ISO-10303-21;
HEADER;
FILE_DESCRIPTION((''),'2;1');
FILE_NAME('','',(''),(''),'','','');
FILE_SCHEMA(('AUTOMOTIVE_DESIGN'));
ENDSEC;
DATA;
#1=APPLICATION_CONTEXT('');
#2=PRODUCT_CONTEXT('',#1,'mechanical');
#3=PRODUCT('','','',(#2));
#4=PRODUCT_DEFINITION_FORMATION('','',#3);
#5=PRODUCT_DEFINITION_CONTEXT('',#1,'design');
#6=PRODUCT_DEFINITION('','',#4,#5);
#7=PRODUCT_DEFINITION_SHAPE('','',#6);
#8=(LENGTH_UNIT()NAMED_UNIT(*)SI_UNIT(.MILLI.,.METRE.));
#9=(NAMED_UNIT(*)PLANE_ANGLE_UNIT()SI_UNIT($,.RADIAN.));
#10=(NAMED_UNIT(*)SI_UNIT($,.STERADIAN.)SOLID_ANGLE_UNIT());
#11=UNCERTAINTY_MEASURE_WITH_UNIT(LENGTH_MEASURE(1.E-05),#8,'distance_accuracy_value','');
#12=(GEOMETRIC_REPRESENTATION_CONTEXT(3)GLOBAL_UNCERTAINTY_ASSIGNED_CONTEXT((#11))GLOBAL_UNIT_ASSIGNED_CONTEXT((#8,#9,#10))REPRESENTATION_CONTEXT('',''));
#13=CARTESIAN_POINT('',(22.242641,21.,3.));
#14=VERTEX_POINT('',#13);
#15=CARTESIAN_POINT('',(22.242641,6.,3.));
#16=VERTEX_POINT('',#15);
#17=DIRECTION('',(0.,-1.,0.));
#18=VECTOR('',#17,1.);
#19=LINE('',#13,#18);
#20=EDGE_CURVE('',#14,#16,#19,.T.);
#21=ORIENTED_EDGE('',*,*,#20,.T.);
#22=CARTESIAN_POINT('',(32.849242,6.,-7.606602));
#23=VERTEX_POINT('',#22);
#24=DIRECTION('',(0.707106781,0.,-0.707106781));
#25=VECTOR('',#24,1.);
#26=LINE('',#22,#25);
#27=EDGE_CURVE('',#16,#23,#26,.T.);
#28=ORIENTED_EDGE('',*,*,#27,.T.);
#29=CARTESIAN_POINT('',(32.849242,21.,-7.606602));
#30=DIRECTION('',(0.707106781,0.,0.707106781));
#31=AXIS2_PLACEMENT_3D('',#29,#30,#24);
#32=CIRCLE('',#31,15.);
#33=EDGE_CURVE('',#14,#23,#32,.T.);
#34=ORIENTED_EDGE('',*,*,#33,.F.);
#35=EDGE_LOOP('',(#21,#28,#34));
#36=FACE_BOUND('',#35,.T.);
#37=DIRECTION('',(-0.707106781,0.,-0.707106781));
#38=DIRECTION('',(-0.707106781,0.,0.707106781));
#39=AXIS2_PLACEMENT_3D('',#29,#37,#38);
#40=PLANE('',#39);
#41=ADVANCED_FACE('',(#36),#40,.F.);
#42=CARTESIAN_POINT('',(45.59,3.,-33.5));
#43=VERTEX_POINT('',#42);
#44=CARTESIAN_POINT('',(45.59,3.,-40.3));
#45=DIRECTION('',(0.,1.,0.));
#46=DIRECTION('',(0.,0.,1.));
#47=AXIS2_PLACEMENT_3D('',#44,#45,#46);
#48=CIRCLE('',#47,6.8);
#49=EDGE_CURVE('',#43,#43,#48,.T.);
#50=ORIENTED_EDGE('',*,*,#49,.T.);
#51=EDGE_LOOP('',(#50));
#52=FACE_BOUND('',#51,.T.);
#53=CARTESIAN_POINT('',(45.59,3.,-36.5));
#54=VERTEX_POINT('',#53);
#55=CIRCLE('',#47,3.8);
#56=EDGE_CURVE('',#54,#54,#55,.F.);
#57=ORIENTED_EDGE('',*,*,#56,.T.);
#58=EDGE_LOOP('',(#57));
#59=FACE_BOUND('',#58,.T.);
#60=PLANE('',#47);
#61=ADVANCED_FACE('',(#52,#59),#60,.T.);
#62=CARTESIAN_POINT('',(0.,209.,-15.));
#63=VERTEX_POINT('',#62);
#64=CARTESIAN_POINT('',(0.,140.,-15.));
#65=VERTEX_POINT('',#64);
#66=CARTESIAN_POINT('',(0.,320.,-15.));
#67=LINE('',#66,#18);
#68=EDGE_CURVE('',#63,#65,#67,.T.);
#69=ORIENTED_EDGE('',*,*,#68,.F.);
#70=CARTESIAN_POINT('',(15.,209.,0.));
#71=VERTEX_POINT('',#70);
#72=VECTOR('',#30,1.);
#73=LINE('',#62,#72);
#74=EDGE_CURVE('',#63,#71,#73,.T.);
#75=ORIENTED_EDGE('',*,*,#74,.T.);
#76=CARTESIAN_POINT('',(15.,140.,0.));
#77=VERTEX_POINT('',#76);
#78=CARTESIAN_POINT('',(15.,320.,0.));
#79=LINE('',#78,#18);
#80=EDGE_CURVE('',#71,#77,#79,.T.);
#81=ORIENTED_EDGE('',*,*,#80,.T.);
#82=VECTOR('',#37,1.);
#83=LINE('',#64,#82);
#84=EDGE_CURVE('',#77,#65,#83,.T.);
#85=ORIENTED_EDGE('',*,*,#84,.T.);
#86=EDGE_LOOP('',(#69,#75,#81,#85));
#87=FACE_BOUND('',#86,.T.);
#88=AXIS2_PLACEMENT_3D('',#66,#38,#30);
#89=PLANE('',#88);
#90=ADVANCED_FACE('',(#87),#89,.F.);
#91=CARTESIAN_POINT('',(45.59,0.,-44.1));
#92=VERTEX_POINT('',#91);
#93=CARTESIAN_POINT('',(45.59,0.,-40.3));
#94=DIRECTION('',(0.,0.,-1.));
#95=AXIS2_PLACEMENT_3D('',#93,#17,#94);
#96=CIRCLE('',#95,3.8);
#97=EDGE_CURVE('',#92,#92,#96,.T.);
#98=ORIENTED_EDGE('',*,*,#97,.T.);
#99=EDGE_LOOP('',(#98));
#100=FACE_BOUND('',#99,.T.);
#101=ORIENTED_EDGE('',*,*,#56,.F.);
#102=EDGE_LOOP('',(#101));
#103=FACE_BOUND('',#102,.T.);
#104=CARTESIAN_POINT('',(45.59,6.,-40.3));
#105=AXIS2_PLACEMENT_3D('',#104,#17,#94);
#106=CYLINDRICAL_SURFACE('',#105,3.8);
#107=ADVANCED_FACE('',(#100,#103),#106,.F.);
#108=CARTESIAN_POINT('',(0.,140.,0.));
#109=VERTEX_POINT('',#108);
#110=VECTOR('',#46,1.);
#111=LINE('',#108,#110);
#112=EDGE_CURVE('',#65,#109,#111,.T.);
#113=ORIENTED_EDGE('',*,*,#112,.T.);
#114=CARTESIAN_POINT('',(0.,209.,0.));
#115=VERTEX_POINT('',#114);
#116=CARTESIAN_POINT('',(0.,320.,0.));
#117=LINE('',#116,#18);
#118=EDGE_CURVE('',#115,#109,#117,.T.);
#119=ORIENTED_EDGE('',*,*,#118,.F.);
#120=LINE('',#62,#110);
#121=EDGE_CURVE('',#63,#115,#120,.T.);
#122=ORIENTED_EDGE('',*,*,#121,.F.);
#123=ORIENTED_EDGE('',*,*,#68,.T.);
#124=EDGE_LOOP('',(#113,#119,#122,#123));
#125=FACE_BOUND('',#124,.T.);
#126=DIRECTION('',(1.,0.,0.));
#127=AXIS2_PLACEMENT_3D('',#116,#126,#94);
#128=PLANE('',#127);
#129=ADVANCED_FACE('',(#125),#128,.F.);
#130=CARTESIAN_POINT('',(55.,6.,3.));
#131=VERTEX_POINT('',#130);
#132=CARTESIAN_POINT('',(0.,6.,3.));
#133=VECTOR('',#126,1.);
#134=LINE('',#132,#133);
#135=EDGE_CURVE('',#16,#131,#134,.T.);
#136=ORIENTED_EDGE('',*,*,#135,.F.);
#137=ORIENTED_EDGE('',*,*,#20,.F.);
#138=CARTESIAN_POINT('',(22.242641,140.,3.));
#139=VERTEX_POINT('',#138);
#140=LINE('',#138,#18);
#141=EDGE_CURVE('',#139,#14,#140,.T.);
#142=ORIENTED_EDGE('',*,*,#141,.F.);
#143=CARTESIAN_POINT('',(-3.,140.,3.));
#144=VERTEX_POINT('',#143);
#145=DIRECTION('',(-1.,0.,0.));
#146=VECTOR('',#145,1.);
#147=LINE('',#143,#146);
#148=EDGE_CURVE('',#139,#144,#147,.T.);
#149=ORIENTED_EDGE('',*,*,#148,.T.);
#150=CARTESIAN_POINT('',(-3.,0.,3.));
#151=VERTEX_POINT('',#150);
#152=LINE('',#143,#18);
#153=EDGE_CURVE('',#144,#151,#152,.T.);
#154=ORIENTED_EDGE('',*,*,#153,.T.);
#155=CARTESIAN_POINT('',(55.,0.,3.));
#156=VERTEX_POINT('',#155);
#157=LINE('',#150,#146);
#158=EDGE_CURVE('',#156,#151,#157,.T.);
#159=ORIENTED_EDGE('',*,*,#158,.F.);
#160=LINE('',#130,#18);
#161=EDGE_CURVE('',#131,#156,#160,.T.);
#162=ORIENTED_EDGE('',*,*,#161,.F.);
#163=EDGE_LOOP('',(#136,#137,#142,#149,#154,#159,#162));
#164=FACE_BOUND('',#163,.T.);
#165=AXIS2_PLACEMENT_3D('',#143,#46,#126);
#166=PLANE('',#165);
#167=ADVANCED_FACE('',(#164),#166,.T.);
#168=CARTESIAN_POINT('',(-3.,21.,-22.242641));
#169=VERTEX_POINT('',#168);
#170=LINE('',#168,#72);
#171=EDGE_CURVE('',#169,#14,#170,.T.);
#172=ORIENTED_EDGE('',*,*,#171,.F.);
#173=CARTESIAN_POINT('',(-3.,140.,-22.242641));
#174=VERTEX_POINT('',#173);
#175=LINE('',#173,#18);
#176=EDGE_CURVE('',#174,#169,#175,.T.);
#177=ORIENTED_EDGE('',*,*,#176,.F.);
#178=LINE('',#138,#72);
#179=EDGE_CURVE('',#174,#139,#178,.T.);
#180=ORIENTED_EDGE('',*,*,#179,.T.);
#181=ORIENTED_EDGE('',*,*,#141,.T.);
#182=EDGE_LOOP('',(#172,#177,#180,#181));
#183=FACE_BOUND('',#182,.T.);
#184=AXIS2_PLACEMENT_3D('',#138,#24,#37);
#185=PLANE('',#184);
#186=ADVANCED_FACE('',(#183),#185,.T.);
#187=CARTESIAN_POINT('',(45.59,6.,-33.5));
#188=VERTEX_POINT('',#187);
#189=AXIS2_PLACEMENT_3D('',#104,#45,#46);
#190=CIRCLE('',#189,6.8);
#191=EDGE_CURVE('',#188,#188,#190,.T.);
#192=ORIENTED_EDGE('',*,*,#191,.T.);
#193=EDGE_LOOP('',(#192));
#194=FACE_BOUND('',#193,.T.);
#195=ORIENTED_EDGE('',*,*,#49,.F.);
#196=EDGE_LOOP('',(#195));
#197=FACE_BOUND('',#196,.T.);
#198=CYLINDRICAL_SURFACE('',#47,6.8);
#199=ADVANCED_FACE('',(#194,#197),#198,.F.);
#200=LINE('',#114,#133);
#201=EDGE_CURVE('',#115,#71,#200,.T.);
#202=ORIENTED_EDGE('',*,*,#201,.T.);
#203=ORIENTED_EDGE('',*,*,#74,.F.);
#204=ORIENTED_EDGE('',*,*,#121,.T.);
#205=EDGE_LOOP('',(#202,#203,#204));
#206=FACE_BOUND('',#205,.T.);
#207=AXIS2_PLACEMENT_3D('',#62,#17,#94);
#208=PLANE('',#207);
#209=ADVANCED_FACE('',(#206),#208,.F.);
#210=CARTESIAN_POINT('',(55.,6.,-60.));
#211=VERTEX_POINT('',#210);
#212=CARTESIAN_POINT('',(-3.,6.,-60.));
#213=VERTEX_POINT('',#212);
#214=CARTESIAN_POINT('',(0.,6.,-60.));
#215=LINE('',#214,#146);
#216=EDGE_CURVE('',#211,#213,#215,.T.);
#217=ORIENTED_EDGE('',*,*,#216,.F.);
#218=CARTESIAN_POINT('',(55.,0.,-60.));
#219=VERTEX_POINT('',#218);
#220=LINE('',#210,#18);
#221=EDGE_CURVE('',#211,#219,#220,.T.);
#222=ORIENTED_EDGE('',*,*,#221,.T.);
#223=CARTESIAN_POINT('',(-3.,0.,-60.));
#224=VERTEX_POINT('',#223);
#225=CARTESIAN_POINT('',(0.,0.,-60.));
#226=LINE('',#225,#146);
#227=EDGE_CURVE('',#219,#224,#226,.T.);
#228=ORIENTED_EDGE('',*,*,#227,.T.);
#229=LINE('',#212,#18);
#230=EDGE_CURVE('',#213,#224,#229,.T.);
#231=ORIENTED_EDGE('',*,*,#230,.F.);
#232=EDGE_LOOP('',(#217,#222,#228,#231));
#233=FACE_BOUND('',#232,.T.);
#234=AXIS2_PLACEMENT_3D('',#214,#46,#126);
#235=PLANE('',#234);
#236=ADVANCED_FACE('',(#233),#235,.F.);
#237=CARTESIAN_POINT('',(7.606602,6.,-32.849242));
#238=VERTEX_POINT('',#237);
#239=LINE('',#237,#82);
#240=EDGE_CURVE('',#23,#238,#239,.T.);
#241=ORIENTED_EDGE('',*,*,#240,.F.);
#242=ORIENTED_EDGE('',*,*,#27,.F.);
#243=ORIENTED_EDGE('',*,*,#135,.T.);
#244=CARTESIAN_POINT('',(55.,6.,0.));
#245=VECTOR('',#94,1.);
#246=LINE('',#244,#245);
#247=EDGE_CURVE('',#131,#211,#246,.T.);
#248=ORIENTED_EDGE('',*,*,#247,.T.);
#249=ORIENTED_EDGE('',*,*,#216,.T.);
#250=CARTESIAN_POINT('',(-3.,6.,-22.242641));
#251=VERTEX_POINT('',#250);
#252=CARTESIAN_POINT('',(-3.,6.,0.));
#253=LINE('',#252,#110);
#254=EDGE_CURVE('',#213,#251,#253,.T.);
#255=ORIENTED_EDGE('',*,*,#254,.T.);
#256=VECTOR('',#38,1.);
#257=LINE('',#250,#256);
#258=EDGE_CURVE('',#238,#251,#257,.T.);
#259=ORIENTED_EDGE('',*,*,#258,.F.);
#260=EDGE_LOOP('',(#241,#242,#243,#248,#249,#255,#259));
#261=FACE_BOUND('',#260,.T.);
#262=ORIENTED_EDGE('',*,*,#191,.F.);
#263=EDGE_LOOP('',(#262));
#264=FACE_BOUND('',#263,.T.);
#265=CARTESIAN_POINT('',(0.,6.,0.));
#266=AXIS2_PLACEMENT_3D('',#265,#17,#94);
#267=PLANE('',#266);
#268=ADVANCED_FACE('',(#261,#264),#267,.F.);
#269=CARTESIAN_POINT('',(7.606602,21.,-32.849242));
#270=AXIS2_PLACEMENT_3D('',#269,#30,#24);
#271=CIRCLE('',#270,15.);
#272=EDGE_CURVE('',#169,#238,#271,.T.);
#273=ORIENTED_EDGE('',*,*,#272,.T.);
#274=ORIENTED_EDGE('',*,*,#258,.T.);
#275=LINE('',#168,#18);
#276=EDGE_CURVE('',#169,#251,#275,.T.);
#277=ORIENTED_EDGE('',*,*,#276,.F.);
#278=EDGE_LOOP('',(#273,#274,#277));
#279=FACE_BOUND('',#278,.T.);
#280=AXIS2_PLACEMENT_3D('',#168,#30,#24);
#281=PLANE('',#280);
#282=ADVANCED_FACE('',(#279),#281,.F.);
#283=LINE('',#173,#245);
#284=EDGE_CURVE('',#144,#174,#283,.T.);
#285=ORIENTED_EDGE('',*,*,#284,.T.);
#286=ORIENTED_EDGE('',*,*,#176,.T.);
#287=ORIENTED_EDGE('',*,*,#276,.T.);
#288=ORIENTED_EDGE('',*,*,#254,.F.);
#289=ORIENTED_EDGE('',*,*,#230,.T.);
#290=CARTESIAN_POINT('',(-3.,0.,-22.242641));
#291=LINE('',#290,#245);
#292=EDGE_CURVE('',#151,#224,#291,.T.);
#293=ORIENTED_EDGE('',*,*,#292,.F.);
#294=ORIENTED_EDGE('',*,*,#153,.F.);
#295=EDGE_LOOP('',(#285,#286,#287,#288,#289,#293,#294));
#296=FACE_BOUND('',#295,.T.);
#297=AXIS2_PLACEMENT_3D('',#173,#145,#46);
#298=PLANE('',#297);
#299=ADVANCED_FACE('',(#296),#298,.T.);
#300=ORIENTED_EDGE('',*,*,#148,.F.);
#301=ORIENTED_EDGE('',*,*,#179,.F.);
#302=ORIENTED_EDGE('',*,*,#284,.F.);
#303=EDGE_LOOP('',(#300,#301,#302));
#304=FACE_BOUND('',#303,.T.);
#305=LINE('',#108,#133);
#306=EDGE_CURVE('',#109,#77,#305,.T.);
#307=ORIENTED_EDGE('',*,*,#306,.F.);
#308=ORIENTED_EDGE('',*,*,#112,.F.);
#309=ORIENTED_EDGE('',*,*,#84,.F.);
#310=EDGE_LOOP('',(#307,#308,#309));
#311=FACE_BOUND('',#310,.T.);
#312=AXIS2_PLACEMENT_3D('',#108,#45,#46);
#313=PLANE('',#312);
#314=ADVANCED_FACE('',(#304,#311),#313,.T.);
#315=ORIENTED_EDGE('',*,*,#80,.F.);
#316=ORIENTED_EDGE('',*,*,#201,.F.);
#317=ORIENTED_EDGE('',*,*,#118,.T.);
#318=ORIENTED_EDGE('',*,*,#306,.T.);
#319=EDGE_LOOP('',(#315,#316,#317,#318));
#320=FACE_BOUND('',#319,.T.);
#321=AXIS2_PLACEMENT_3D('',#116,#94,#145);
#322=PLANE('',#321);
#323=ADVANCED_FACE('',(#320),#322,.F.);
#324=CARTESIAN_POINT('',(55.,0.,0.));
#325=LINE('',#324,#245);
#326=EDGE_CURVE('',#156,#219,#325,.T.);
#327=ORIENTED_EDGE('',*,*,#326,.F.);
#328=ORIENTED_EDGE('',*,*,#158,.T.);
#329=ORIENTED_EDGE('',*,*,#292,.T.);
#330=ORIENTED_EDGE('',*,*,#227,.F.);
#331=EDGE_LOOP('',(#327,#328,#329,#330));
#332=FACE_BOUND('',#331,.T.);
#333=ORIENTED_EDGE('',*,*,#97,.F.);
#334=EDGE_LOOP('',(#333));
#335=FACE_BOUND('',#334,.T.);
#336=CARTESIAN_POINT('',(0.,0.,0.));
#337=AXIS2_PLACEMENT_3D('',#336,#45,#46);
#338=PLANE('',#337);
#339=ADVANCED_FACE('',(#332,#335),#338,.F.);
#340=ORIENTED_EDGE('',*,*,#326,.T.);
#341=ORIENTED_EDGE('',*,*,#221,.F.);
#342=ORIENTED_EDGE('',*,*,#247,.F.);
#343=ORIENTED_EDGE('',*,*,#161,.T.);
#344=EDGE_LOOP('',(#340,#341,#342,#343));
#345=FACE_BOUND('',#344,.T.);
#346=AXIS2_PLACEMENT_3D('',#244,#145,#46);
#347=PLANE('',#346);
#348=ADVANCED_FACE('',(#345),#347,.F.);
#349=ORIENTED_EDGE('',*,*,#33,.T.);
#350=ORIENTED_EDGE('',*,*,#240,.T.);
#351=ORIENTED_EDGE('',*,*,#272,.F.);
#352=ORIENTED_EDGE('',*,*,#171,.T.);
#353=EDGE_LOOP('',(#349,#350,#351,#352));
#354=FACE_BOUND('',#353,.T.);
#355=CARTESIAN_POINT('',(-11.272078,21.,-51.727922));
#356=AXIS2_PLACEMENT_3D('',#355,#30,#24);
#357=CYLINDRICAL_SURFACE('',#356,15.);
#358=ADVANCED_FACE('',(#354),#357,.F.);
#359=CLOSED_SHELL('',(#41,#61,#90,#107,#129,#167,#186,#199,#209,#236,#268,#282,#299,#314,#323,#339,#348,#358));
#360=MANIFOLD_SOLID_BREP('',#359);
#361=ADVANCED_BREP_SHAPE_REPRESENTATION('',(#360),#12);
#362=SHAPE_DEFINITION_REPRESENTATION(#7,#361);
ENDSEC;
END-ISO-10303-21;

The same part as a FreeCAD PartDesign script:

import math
import FreeCAD as App
import Part
import Sketcher

V = App.Vector
Q = App.Units.Quantity

doc = App.newDocument("Part")
body = doc.addObject("PartDesign::Body", "Body")

# Sketch on XZ plane
sketch1 = body.newObject("Sketcher::SketchObject", "Sketch")
sketch1.AttachmentSupport = (doc.getObject("XZ_Plane"), [""])
sketch1.MapMode = "FlatFace"
sketch1.addGeometry(Part.LineSegment(V(0, -15, 0), V(0, 0, 0)), False)
sketch1.addGeometry(Part.LineSegment(V(0, 0, 0), V(15, 0, 0)), False)
sketch1.addGeometry(Part.LineSegment(V(15, 0, 0), V(0, -15, 0)), False)
sketch1.addConstraint(Sketcher.Constraint("Coincident", 0, 2, 1, 1))
sketch1.addConstraint(Sketcher.Constraint("Coincident", 1, 2, 2, 1))
sketch1.addConstraint(Sketcher.Constraint("Coincident", 2, 2, 0, 1))
sketch1.addConstraint(Sketcher.Constraint("Vertical", 0))
sketch1.addConstraint(Sketcher.Constraint("Horizontal", 1))
sketch1.addConstraint(Sketcher.Constraint("Coincident", 0, 2, -1, 1))
sketch1.addConstraint(Sketcher.Constraint("Equal", 1, 0))
sketch1.addConstraint(Sketcher.Constraint("DistanceX", 1, 1, 1, 2, Q("15 mm")))
pad1 = body.newObject("PartDesign::Pad", "Pad")
pad1.Profile = sketch1
pad1.Length = 320
pad1.Reversed = True

# Sketch on XY plane
sketch2 = body.newObject("Sketcher::SketchObject", "Sketch001")
sketch2.AttachmentSupport = (doc.getObject("XY_Plane"), [""])
sketch2.MapMode = "FlatFace"
sketch2.addGeometry(Part.LineSegment(V(0, 320, 0), V(0, 209, 0)), False)
sketch2.addGeometry(Part.LineSegment(V(0, 209, 0), V(15, 209, 0)), False)
sketch2.addGeometry(Part.LineSegment(V(15, 209, 0), V(15, 320, 0)), False)
sketch2.addGeometry(Part.LineSegment(V(15, 320, 0), V(0, 320, 0)), False)
sketch2.addConstraint(Sketcher.Constraint("Coincident", 0, 2, 1, 1))
sketch2.addConstraint(Sketcher.Constraint("Coincident", 1, 2, 2, 1))
sketch2.addConstraint(Sketcher.Constraint("Coincident", 2, 2, 3, 1))
sketch2.addConstraint(Sketcher.Constraint("Coincident", 3, 2, 0, 1))
sketch2.addConstraint(Sketcher.Constraint("Vertical", 0))
sketch2.addConstraint(Sketcher.Constraint("Horizontal", 1))
sketch2.addConstraint(Sketcher.Constraint("Vertical", 2))
sketch2.addConstraint(Sketcher.Constraint("Horizontal", 3))
sketch2.addConstraint(Sketcher.Constraint("PointOnObject", 0, 2, -2))
sketch2.addConstraint(Sketcher.Constraint("DistanceX", 1, 1, 1, 2, Q("15 mm")))
sketch2.addConstraint(Sketcher.Constraint("DistanceY", 0, 2, 0, 1, Q("111 mm")))
sketch2.addConstraint(Sketcher.Constraint("DistanceY", -1, 1, 0, 2, Q("209 mm")))
pocket1 = body.newObject("PartDesign::Pocket", "Pocket")
pocket1.Profile = sketch2
pocket1.Type = "ThroughAll"

# Sketch on XZ plane
sketch3 = body.newObject("Sketcher::SketchObject", "Sketch002")
sketch3.AttachmentSupport = (doc.getObject("XZ_Plane"), [""])
sketch3.MapMode = "FlatFace"
sketch3.addGeometry(Part.LineSegment(V(-3, 3, 0), V(-3, -22, 0)), False)
sketch3.addGeometry(Part.LineSegment(V(-3, -22, 0), V(22, 3, 0)), False)
sketch3.addGeometry(Part.LineSegment(V(22, 3, 0), V(-3, 3, 0)), False)
sketch3.addConstraint(Sketcher.Constraint("Coincident", 0, 2, 1, 1))
sketch3.addConstraint(Sketcher.Constraint("Coincident", 1, 2, 2, 1))
sketch3.addConstraint(Sketcher.Constraint("Coincident", 2, 2, 0, 1))
sketch3.addConstraint(Sketcher.Constraint("Vertical", 0))
sketch3.addConstraint(Sketcher.Constraint("Horizontal", 2))
sketch3.addConstraint(Sketcher.Constraint("Equal", 2, 0))
sketch3.addConstraint(Sketcher.Constraint("DistanceX", 0, 2, -1, 1, Q("3 mm")))
sketch3.addConstraint(Sketcher.Constraint("DistanceY", -1, 1, 1, 2, Q("3 mm")))
sketch3.addConstraint(Sketcher.Constraint("DistanceX", 2, 2, 2, 1, Q("25.242641 mm")))
pad2 = body.newObject("PartDesign::Pad", "Pad001")
pad2.Profile = sketch3
pad2.Length = 140
pad2.Reversed = True

# Sketch on XZ plane
sketch4 = body.newObject("Sketcher::SketchObject", "Sketch003")
sketch4.AttachmentSupport = (doc.getObject("XZ_Plane"), [""])
sketch4.MapMode = "FlatFace"
sketch4.addGeometry(Part.LineSegment(V(-3, 3, 0), V(-3, -60, 0)), False)
sketch4.addGeometry(Part.LineSegment(V(-3, -60, 0), V(55, -60, 0)), False)
sketch4.addGeometry(Part.LineSegment(V(55, -60, 0), V(55, 3, 0)), False)
sketch4.addGeometry(Part.LineSegment(V(55, 3, 0), V(-3, 3, 0)), False)
sketch4.addGeometry(Part.Circle(V(45.6, -40.3, 0), V(0, 0, 1), 3.8), False)
sketch4.addConstraint(Sketcher.Constraint("Coincident", 0, 2, 1, 1))
sketch4.addConstraint(Sketcher.Constraint("Coincident", 1, 2, 2, 1))
sketch4.addConstraint(Sketcher.Constraint("Coincident", 2, 2, 3, 1))
sketch4.addConstraint(Sketcher.Constraint("Coincident", 3, 2, 0, 1))
sketch4.addConstraint(Sketcher.Constraint("Vertical", 0))
sketch4.addConstraint(Sketcher.Constraint("Horizontal", 1))
sketch4.addConstraint(Sketcher.Constraint("Vertical", 2))
sketch4.addConstraint(Sketcher.Constraint("Horizontal", 3))
sketch4.addConstraint(Sketcher.Constraint("Diameter", 4, Q("7.6 mm")))
sketch4.addConstraint(Sketcher.Constraint("DistanceX", 1, 1, 1, 2, Q("58 mm")))
sketch4.addConstraint(Sketcher.Constraint("DistanceY", 0, 2, 0, 1, Q("63 mm")))
sketch4.addConstraint(Sketcher.Constraint("DistanceX", 0, 2, -1, 1, Q("3 mm")))
sketch4.addConstraint(Sketcher.Constraint("DistanceY", 0, 2, -1, 1, Q("60 mm")))
sketch4.addConstraint(Sketcher.Constraint("DistanceY", 4, 3, -1, 1, Q("40.3 mm")))
sketch4.addConstraint(Sketcher.Constraint("DistanceX", -1, 1, 4, 3, Q("45.59 mm")))
pad3 = body.newObject("PartDesign::Pad", "Pad002")
pad3.Profile = sketch4
pad3.Length = 6
pad3.Reversed = True

# Sketch on XZ plane
sketch5 = body.newObject("Sketcher::SketchObject", "Sketch004")
sketch5.AttachmentSupport = (doc.getObject("XZ_Plane"), [""])
sketch5.MapMode = "FlatFace"
sketch5.AttachmentOffset = App.Placement(V(0, 0, -6), App.Rotation())
sketch5.addGeometry(Part.LineSegment(V(8, -33, 0), V(-3, -22, 0)), False)
sketch5.addGeometry(Part.LineSegment(V(-3, -22, 0), V(22, 3, 0)), False)
sketch5.addGeometry(Part.LineSegment(V(22, 3, 0), V(33, -8, 0)), False)
sketch5.addGeometry(Part.LineSegment(V(33, -8, 0), V(8, -33, 0)), False)
sketch5.addConstraint(Sketcher.Constraint("Coincident", 0, 2, 1, 1))
sketch5.addConstraint(Sketcher.Constraint("Coincident", 1, 2, 2, 1))
sketch5.addConstraint(Sketcher.Constraint("Coincident", 2, 2, 3, 1))
sketch5.addConstraint(Sketcher.Constraint("Coincident", 3, 2, 0, 1))
sketch5.addConstraint(Sketcher.Constraint("Perpendicular", 0, 1))
sketch5.addConstraint(Sketcher.Constraint("Perpendicular", 1, 2))
sketch5.addConstraint(Sketcher.Constraint("Perpendicular", 2, 3))
sketch5.addConstraint(Sketcher.Constraint("Angle", 0, Q("135 deg")))
sketch5.addConstraint(Sketcher.Constraint("Distance", 0, Q("15 mm")))
sketch5.addConstraint(Sketcher.Constraint("DistanceX", 0, 2, -1, 1, Q("3 mm")))
sketch5.addConstraint(Sketcher.Constraint("DistanceY", -1, 1, 1, 2, Q("3 mm")))
sketch5.addConstraint(Sketcher.Constraint("DistanceY", 0, 2, -1, 1, Q("22.242641 mm")))
pad4 = body.newObject("PartDesign::Pad", "Pad003")
pad4.Profile = sketch5
pad4.Length = 15
pad4.Reversed = True

# Sketch on an angled plane
sketch6 = body.newObject("Sketcher::SketchObject", "Sketch005")
sketch6.Placement = App.Placement(V(12.62132, 0, 12.62132), App.Rotation(V(0.707106781, 0, -0.707106781), V(0, 0.999999999, 0), V(0.707106781, 0, 0.707106781), "ZXY"))
sketch6.addGeometry(Part.LineSegment(V(29, 21, 0), V(14, 21, 0)), False)
sketch6.addGeometry(Part.ArcOfCircle(Part.Circle(V(29, 21, 0), V(0, 0, 1), 15), math.radians(180), math.radians(270)), False)
sketch6.addGeometry(Part.LineSegment(V(29, 6, 0), V(29, 21, 0)), False)
sketch6.addConstraint(Sketcher.Constraint("Coincident", 0, 2, 1, 1))
sketch6.addConstraint(Sketcher.Constraint("Coincident", 1, 2, 2, 1))
sketch6.addConstraint(Sketcher.Constraint("Coincident", 2, 2, 0, 1))
sketch6.addConstraint(Sketcher.Constraint("Horizontal", 0))
sketch6.addConstraint(Sketcher.Constraint("Vertical", 2))
sketch6.addConstraint(Sketcher.Constraint("Coincident", 2, 2, 1, 3))
sketch6.addConstraint(Sketcher.Constraint("Radius", 1, Q("15 mm")))
sketch6.addConstraint(Sketcher.Constraint("DistanceY", -1, 1, 1, 3, Q("21 mm")))
sketch6.addConstraint(Sketcher.Constraint("DistanceX", -1, 1, 1, 3, Q("28.606602 mm")))
pocket2 = body.newObject("PartDesign::Pocket", "Pocket001")
pocket2.Profile = sketch6
pocket2.Type = "ThroughAll"

# Sketch on XZ plane
sketch7 = body.newObject("Sketcher::SketchObject", "Sketch006")
sketch7.AttachmentSupport = (doc.getObject("XZ_Plane"), [""])
sketch7.MapMode = "FlatFace"
sketch7.AttachmentOffset = App.Placement(V(0, 0, -6), App.Rotation())
sketch7.addGeometry(Part.Circle(V(46, -40, 0), V(0, 0, 1), 7), False)
sketch7.addConstraint(Sketcher.Constraint("Diameter", 0, Q("13.6 mm")))
sketch7.addConstraint(Sketcher.Constraint("DistanceY", 0, 3, -1, 1, Q("40.3 mm")))
sketch7.addConstraint(Sketcher.Constraint("DistanceX", -1, 1, 0, 3, Q("45.59 mm")))
pocket3 = body.newObject("PartDesign::Pocket", "Pocket002")
pocket3.Profile = sketch7
pocket3.Length = 3
pocket3.Reversed = True

doc.recompute()
